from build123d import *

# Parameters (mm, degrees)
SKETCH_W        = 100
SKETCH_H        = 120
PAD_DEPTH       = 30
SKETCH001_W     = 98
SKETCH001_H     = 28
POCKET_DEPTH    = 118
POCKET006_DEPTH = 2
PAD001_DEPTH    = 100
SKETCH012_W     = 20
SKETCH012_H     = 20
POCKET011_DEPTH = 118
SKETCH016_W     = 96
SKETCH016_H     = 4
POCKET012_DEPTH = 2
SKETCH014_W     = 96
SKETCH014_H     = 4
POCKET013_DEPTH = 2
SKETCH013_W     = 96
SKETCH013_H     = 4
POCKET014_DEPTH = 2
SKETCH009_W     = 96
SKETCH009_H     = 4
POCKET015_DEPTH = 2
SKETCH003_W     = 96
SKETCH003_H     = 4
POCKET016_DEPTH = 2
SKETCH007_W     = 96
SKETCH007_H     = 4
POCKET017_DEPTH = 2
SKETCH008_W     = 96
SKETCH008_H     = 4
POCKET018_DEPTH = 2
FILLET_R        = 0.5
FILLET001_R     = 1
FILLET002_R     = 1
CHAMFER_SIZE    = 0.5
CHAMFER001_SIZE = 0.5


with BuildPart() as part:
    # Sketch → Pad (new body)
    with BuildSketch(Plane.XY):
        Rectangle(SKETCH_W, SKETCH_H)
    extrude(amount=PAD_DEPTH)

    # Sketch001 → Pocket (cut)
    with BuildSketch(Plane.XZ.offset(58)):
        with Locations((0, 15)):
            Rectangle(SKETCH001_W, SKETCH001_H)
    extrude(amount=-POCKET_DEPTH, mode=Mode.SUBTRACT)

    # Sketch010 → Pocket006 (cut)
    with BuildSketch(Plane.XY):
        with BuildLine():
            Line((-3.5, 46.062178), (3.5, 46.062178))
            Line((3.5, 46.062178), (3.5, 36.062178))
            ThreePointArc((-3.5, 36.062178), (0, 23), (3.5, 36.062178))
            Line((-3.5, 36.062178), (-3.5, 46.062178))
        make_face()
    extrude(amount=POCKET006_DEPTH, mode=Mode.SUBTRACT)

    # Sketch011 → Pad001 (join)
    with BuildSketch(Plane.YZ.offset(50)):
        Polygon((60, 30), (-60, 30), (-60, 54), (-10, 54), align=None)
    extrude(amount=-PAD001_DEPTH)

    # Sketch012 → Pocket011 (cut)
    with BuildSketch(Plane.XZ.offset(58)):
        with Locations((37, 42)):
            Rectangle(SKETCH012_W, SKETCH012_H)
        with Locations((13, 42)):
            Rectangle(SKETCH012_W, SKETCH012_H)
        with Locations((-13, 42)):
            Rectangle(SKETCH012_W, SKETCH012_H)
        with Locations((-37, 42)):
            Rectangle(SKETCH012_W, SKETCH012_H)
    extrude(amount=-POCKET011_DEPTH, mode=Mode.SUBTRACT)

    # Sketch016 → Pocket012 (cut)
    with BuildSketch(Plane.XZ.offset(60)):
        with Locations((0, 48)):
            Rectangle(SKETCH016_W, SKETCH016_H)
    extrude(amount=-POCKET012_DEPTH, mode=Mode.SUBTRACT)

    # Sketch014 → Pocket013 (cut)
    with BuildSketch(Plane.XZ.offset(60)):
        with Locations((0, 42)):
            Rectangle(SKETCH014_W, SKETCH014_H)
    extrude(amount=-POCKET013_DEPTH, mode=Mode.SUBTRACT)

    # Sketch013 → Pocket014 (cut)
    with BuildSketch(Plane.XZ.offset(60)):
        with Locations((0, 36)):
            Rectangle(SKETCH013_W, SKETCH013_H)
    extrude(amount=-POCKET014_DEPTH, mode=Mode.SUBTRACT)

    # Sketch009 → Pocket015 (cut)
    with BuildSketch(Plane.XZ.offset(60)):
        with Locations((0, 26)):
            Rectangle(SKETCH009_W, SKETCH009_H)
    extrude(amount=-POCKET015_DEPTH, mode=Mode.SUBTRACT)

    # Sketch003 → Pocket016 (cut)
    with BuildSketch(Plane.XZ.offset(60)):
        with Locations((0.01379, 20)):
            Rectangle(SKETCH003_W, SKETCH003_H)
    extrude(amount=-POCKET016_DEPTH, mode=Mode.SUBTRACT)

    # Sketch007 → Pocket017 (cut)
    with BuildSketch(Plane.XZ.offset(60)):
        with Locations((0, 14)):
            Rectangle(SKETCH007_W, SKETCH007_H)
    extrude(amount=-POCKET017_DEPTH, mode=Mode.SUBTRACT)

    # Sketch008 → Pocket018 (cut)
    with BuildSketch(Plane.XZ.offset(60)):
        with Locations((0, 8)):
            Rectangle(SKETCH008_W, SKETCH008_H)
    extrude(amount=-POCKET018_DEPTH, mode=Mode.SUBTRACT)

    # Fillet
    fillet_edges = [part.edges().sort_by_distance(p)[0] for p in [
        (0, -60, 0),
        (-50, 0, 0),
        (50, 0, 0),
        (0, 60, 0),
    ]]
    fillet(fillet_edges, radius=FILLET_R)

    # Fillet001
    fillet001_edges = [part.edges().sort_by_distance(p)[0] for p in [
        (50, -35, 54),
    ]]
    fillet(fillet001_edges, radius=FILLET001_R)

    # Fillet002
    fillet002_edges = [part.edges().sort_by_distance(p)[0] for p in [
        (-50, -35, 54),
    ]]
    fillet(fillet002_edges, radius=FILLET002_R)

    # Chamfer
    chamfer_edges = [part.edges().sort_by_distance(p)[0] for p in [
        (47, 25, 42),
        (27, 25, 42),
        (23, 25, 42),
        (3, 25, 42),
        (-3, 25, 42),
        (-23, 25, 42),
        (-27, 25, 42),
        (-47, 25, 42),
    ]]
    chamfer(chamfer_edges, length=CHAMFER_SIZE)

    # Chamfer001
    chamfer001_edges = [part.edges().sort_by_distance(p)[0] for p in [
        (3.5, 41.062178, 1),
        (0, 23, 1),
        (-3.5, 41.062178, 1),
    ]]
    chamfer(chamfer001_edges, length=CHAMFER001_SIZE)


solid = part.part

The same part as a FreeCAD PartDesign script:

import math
import FreeCAD as App
import Part
import Sketcher


def edges_at(feature, points):
    """Names of the edges that pass closest to the given points."""
    edges = feature.Shape.Edges
    near = lambda p: min(range(len(edges)), key=lambda i: edges[i].distToShape(Part.Vertex(*p))[0])
    return sorted({f"Edge{near(p) + 1}" for p in points})


def add_polygon(sketch, points):
    """Adds a closed chain of lines whose ends are joined by coincident constraints."""
    first, n = sketch.GeometryCount, len(points)
    for a, b in zip(points, points[1:] + points[:1]):
        sketch.addGeometry(Part.LineSegment(App.Vector(*a, 0), App.Vector(*b, 0)), False)
    for i in range(n):
        sketch.addConstraint(Sketcher.Constraint("Coincident", first + i, 2, first + (i + 1) % n, 1))

doc = App.newDocument("Part")
body = doc.addObject("PartDesign::Body", "Body")

sketch1 = body.newObject("Sketcher::SketchObject", "Sketch")
sketch1.AttachmentSupport = (doc.getObject("XY_Plane"), [""])
sketch1.MapMode = "FlatFace"
add_polygon(sketch1, [(-50, 60), (-50, -60), (50, -60), (50, 60)])
sketch1.addConstraint(Sketcher.Constraint("Vertical", 0))
sketch1.addConstraint(Sketcher.Constraint("Horizontal", 1))
sketch1.addConstraint(Sketcher.Constraint("Vertical", 2))
sketch1.addConstraint(Sketcher.Constraint("Horizontal", 3))
sketch1.addConstraint(Sketcher.Constraint("Symmetric", 0, 2, 2, 2, -1, 1))
sketch1.addConstraint(Sketcher.Constraint("DistanceX", 1, 1, 1, 2, 100.0))
sketch1.addConstraint(Sketcher.Constraint("DistanceY", 0, 2, 0, 1, 120.0))
pad1 = body.newObject("PartDesign::Pad", "Pad")
pad1.Profile = sketch1
pad1.Length = 30

sketch2 = body.newObject("Sketcher::SketchObject", "Sketch001")
sketch2.AttachmentSupport = (doc.getObject("XZ_Plane"), [""])
sketch2.MapMode = "FlatFace"
sketch2.AttachmentOffset = App.Placement(App.Vector(0, 0, 58), App.Rotation())
add_polygon(sketch2, [(-49, 29), (-49, 1), (49, 1), (49, 29)])
sketch2.addConstraint(Sketcher.Constraint("Vertical", 0))
sketch2.addConstraint(Sketcher.Constraint("Horizontal", 1))
sketch2.addConstraint(Sketcher.Constraint("Vertical", 2))
sketch2.addConstraint(Sketcher.Constraint("Horizontal", 3))
sketch2.addConstraint(Sketcher.Constraint("DistanceX", 1, 1, 1, 2, 98.0))
sketch2.addConstraint(Sketcher.Constraint("DistanceY", 0, 2, 0, 1, 28.0))
sketch2.addConstraint(Sketcher.Constraint("DistanceX", 0, 2, -1, 1, 49.0))
sketch2.addConstraint(Sketcher.Constraint("DistanceY", -1, 1, 0, 2, 1.0))
pocket1 = body.newObject("PartDesign::Pocket", "Pocket")
pocket1.Profile = sketch2
pocket1.Length = 118

sketch3 = body.newObject("Sketcher::SketchObject", "Sketch002")
sketch3.AttachmentSupport = (doc.getObject("XY_Plane"), [""])
sketch3.MapMode = "FlatFace"
sketch3.addGeometry(Part.LineSegment(App.Vector(4, 46, 0), App.Vector(-4, 46, 0)), False)
sketch3.addGeometry(Part.LineSegment(App.Vector(-4, 46, 0), App.Vector(-4, 36, 0)), False)
sketch3.addGeometry(Part.ArcOfCircle(Part.Circle(App.Vector(0, 30, 0), App.Vector(0, 0, 1), 7), math.radians(120), math.radians(420)), False)
sketch3.addGeometry(Part.LineSegment(App.Vector(4, 36, 0), App.Vector(4, 46, 0)), False)
sketch3.addConstraint(Sketcher.Constraint("Coincident", 0, 2, 1, 1))
sketch3.addConstraint(Sketcher.Constraint("Coincident", 1, 2, 2, 1))
sketch3.addConstraint(Sketcher.Constraint("Coincident", 2, 2, 3, 1))
sketch3.addConstraint(Sketcher.Constraint("Coincident", 3, 2, 0, 1))
sketch3.addConstraint(Sketcher.Constraint("Horizontal", 0))
sketch3.addConstraint(Sketcher.Constraint("Vertical", 1))
sketch3.addConstraint(Sketcher.Constraint("Vertical", 3))
sketch3.addConstraint(Sketcher.Constraint("Symmetric", 1, 2, 2, 2, -2))
sketch3.addConstraint(Sketcher.Constraint("Radius", 2, 7.0))
sketch3.addConstraint(Sketcher.Constraint("DistanceX", 0, 2, 0, 1, 7.0))
sketch3.addConstraint(Sketcher.Constraint("DistanceY", 1, 2, 1, 1, 10.0))
sketch3.addConstraint(Sketcher.Constraint("DistanceY", -1, 1, 2, 3, 30.0))
pocket2 = body.newObject("PartDesign::Pocket", "Pocket001")
pocket2.Profile = sketch3
pocket2.Length = 2
pocket2.Reversed = True

sketch4 = body.newObject("Sketcher::SketchObject", "Sketch003")
sketch4.AttachmentSupport = (doc.getObject("YZ_Plane"), [""])
sketch4.MapMode = "FlatFace"
sketch4.AttachmentOffset = App.Placement(App.Vector(0, 0, 50), App.Rotation())
add_polygon(sketch4, [(-60, 30), (60, 30), (-10, 54), (-60, 54)])
sketch4.addConstraint(Sketcher.Constraint("Horizontal", 0))
sketch4.addConstraint(Sketcher.Constraint("Horizontal", 2))
sketch4.addConstraint(Sketcher.Constraint("Vertical", 3))
sketch4.addConstraint(Sketcher.Constraint("DistanceX", 0, 1, 0, 2, 120.0))
sketch4.addConstraint(Sketcher.Constraint("DistanceX", 2, 2, 2, 1, 50.0))
sketch4.addConstraint(Sketcher.Constraint("DistanceY", 3, 2, 3, 1, 24.0))
sketch4.addConstraint(Sketcher.Constraint("DistanceX", -1, 1, 0, 2, 60.0))
sketch4.addConstraint(Sketcher.Constraint("DistanceY", -1, 1, 0, 2, 30.0))
pad2 = body.newObject("PartDesign::Pad", "Pad001")
pad2.Profile = sketch4
pad2.Length = 100
pad2.Reversed = True

sketch5 = body.newObject("Sketcher::SketchObject", "Sketch004")
sketch5.AttachmentSupport = (doc.getObject("XZ_Plane"), [""])
sketch5.MapMode = "FlatFace"
sketch5.AttachmentOffset = App.Placement(App.Vector(0, 0, 58), App.Rotation())
add_polygon(sketch5, [(27, 52), (27, 32), (47, 32), (47, 52)])
add_polygon(sketch5, [(3, 52), (3, 32), (23, 32), (23, 52)])
add_polygon(sketch5, [(-23, 52), (-23, 32), (-3, 32), (-3, 52)])
add_polygon(sketch5, [(-47, 52), (-47, 32), (-27, 32), (-27, 52)])
sketch5.addConstraint(Sketcher.Constraint("Vertical", 0))
sketch5.addConstraint(Sketcher.Constraint("Horizontal", 1))
sketch5.addConstraint(Sketcher.Constraint("Vertical", 2))
sketch5.addConstraint(Sketcher.Constraint("Horizontal", 3))
sketch5.addConstraint(Sketcher.Constraint("Vertical", 4))
sketch5.addConstraint(Sketcher.Constraint("Horizontal", 5))
sketch5.addConstraint(Sketcher.Constraint("Vertical", 6))
sketch5.addConstraint(Sketcher.Constraint("Horizontal", 7))
sketch5.addConstraint(Sketcher.Constraint("Vertical", 8))
sketch5.addConstraint(Sketcher.Constraint("Horizontal", 9))
sketch5.addConstraint(Sketcher.Constraint("Vertical", 10))
sketch5.addConstraint(Sketcher.Constraint("Horizontal", 11))
sketch5.addConstraint(Sketcher.Constraint("Vertical", 12))
sketch5.addConstraint(Sketcher.Constraint("Horizontal", 13))
sketch5.addConstraint(Sketcher.Constraint("Vertical", 14))
sketch5.addConstraint(Sketcher.Constraint("Horizontal", 15))
sketch5.addConstraint(Sketcher.Constraint("Symmetric", 5, 2, 8, 2, -2))
sketch5.addConstraint(Sketcher.Constraint("Symmetric", 7, 2, 10, 2, -2))
sketch5.addConstraint(Sketcher.Constraint("Symmetric", 1, 2, 12, 2, -2))
sketch5.addConstraint(Sketcher.Constraint("Symmetric", 3, 2, 14, 2, -2))
sketch5.addConstraint(Sketcher.Constraint("Horizontal", 1, 2, 4, 2))
sketch5.addConstraint(Sketcher.Constraint("Horizontal", 3, 2, 6, 2))
sketch5.addConstraint(Sketcher.Constraint("Equal", 3, 5))
sketch5.addConstraint(Sketcher.Constraint("Equal", 15, 0))
sketch5.addConstraint(Sketcher.Constraint("DistanceX", 1, 1, 1, 2, 20.0))
sketch5.addConstraint(Sketcher.Constraint("DistanceX", -1, 1, 0, 2, 27.0))
sketch5.addConstraint(Sketcher.Constraint("DistanceY", -1, 1, 0, 2, 32.0))
sketch5.addConstraint(Sketcher.Constraint("DistanceX", -1, 1, 4, 2, 3.0))
pocket3 = body.newObject("PartDesign::Pocket", "Pocket002")
pocket3.Profile = sketch5
pocket3.Length = 118

sketch6 = body.newObject("Sketcher::SketchObject", "Sketch005")
sketch6.AttachmentSupport = (doc.getObject("XZ_Plane"), [""])
sketch6.MapMode = "FlatFace"
sketch6.AttachmentOffset = App.Placement(App.Vector(0, 0, 60), App.Rotation())
add_polygon(sketch6, [(-48, 50), (-48, 46), (48, 46), (48, 50)])
sketch6.addConstraint(Sketcher.Constraint("Vertical", 0))
sketch6.addConstraint(Sketcher.Constraint("Horizontal", 1))
sketch6.addConstraint(Sketcher.Constraint("Vertical", 2))
sketch6.addConstraint(Sketcher.Constraint("Horizontal", 3))
sketch6.addConstraint(Sketcher.Constraint("DistanceX", 1, 1, 1, 2, 96.0))
sketch6.addConstraint(Sketcher.Constraint("DistanceY", 0, 2, 0, 1, 4.0))
sketch6.addConstraint(Sketcher.Constraint("DistanceX", 0, 2, -1, 1, 48.0))
sketch6.addConstraint(Sketcher.Constraint("DistanceY", -1, 1, 0, 2, 46.0))
pocket4 = body.newObject("PartDesign::Pocket", "Pocket003")
pocket4.Profile = sketch6
pocket4.Length = 2

sketch7 = body.newObject("Sketcher::SketchObject", "Sketch006")
sketch7.AttachmentSupport = (doc.getObject("XZ_Plane"), [""])
sketch7.MapMode = "FlatFace"
sketch7.AttachmentOffset = App.Placement(App.Vector(0, 0, 60), App.Rotation())
add_polygon(sketch7, [(-48, 44), (-48, 40), (48, 40), (48, 44)])
sketch7.addConstraint(Sketcher.Constraint("Vertical", 0))
sketch7.addConstraint(Sketcher.Constraint("Horizontal", 1))
sketch7.addConstraint(Sketcher.Constraint("Vertical", 2))
sketch7.addConstraint(Sketcher.Constraint("Horizontal", 3))
sketch7.addConstraint(Sketcher.Constraint("DistanceX", 1, 1, 1, 2, 96.0))
sketch7.addConstraint(Sketcher.Constraint("DistanceY", 0, 2, 0, 1, 4.0))
sketch7.addConstraint(Sketcher.Constraint("DistanceX", 0, 2, -1, 1, 48.0))
sketch7.addConstraint(Sketcher.Constraint("DistanceY", -1, 1, 0, 2, 40.0))
pocket5 = body.newObject("PartDesign::Pocket", "Pocket004")
pocket5.Profile = sketch7
pocket5.Length = 2

sketch8 = body.newObject("Sketcher::SketchObject", "Sketch007")
sketch8.AttachmentSupport = (doc.getObject("XZ_Plane"), [""])
sketch8.MapMode = "FlatFace"
sketch8.AttachmentOffset = App.Placement(App.Vector(0, 0, 60), App.Rotation())
add_polygon(sketch8, [(-48, 38), (-48, 34), (48, 34), (48, 38)])
sketch8.addConstraint(Sketcher.Constraint("Vertical", 0))
sketch8.addConstraint(Sketcher.Constraint("Horizontal", 1))
sketch8.addConstraint(Sketcher.Constraint("Vertical", 2))
sketch8.addConstraint(Sketcher.Constraint("Horizontal", 3))
sketch8.addConstraint(Sketcher.Constraint("DistanceX", 1, 1, 1, 2, 96.0))
sketch8.addConstraint(Sketcher.Constraint("DistanceY", 0, 2, 0, 1, 4.0))
sketch8.addConstraint(Sketcher.Constraint("DistanceX", 0, 2, -1, 1, 48.0))
sketch8.addConstraint(Sketcher.Constraint("DistanceY", -1, 1, 0, 2, 34.0))
pocket6 = body.newObject("PartDesign::Pocket", "Pocket005")
pocket6.Profile = sketch8
pocket6.Length = 2

sketch9 = body.newObject("Sketcher::SketchObject", "Sketch008")
sketch9.AttachmentSupport = (doc.getObject("XZ_Plane"), [""])
sketch9.MapMode = "FlatFace"
sketch9.AttachmentOffset = App.Placement(App.Vector(0, 0, 60), App.Rotation())
add_polygon(sketch9, [(-48, 28), (-48, 24), (48, 24), (48, 28)])
sketch9.addConstraint(Sketcher.Constraint("Vertical", 0))
sketch9.addConstraint(Sketcher.Constraint("Horizontal", 1))
sketch9.addConstraint(Sketcher.Constraint("Vertical", 2))
sketch9.addConstraint(Sketcher.Constraint("Horizontal", 3))
sketch9.addConstraint(Sketcher.Constraint("DistanceX", 1, 1, 1, 2, 96.0))
sketch9.addConstraint(Sketcher.Constraint("DistanceY", 0, 2, 0, 1, 4.0))
sketch9.addConstraint(Sketcher.Constraint("DistanceX", 0, 2, -1, 1, 48.0))
sketch9.addConstraint(Sketcher.Constraint("DistanceY", -1, 1, 0, 2, 24.0))
pocket7 = body.newObject("PartDesign::Pocket", "Pocket006")
pocket7.Profile = sketch9
pocket7.Length = 2

sketch10 = body.newObject("Sketcher::SketchObject", "Sketch009")
sketch10.AttachmentSupport = (doc.getObject("XZ_Plane"), [""])
sketch10.MapMode = "FlatFace"
sketch10.AttachmentOffset = App.Placement(App.Vector(0, 0, 60), App.Rotation())
add_polygon(sketch10, [(-48, 22), (-48, 18), (48, 18), (48, 22)])
sketch10.addConstraint(Sketcher.Constraint("Vertical", 0))
sketch10.addConstraint(Sketcher.Constraint("Horizontal", 1))
sketch10.addConstraint(Sketcher.Constraint("Vertical", 2))
sketch10.addConstraint(Sketcher.Constraint("Horizontal", 3))
sketch10.addConstraint(Sketcher.Constraint("DistanceX", 1, 1, 1, 2, 96.0))
sketch10.addConstraint(Sketcher.Constraint("DistanceY", 0, 2, 0, 1, 4.0))
sketch10.addConstraint(Sketcher.Constraint("DistanceY", -1, 1, 0, 2, 18.0))
sketch10.addConstraint(Sketcher.Constraint("DistanceX", 0, 2, -1, 1, 47.98621))
pocket8 = body.newObject("PartDesign::Pocket", "Pocket007")
pocket8.Profile = sketch10
pocket8.Length = 2

sketch11 = body.newObject("Sketcher::SketchObject", "Sketch010")
sketch11.AttachmentSupport = (doc.getObject("XZ_Plane"), [""])
sketch11.MapMode = "FlatFace"
sketch11.AttachmentOffset = App.Placement(App.Vector(0, 0, 60), App.Rotation())
add_polygon(sketch11, [(-48, 16), (-48, 12), (48, 12), (48, 16)])
sketch11.addConstraint(Sketcher.Constraint("Vertical", 0))
sketch11.addConstraint(Sketcher.Constraint("Horizontal", 1))
sketch11.addConstraint(Sketcher.Constraint("Vertical", 2))
sketch11.addConstraint(Sketcher.Constraint("Horizontal", 3))
sketch11.addConstraint(Sketcher.Constraint("DistanceX", 1, 1, 1, 2, 96.0))
sketch11.addConstraint(Sketcher.Constraint("DistanceY", 0, 2, 0, 1, 4.0))
sketch11.addConstraint(Sketcher.Constraint("DistanceX", 0, 2, -1, 1, 48.0))
sketch11.addConstraint(Sketcher.Constraint("DistanceY", -1, 1, 0, 2, 12.0))
pocket9 = body.newObject("PartDesign::Pocket", "Pocket008")
pocket9.Profile = sketch11
pocket9.Length = 2

sketch12 = body.newObject("Sketcher::SketchObject", "Sketch011")
sketch12.AttachmentSupport = (doc.getObject("XZ_Plane"), [""])
sketch12.MapMode = "FlatFace"
sketch12.AttachmentOffset = App.Placement(App.Vector(0, 0, 60), App.Rotation())
add_polygon(sketch12, [(-48, 10), (-48, 6), (48, 6), (48, 10)])
sketch12.addConstraint(Sketcher.Constraint("Vertical", 0))
sketch12.addConstraint(Sketcher.Constraint("Horizontal", 1))
sketch12.addConstraint(Sketcher.Constraint("Vertical", 2))
sketch12.addConstraint(Sketcher.Constraint("Horizontal", 3))
sketch12.addConstraint(Sketcher.Constraint("DistanceX", 1, 1, 1, 2, 96.0))
sketch12.addConstraint(Sketcher.Constraint("DistanceY", 0, 2, 0, 1, 4.0))
sketch12.addConstraint(Sketcher.Constraint("DistanceX", 0, 2, -1, 1, 48.0))
sketch12.addConstraint(Sketcher.Constraint("DistanceY", -1, 1, 0, 2, 6.0))
pocket10 = body.newObject("PartDesign::Pocket", "Pocket009")
pocket10.Profile = sketch12
pocket10.Length = 2
doc.recompute()

fillet = body.newObject("PartDesign::Fillet", "Fillet")
fillet.Base = (pocket10, edges_at(pocket10, [
    (0, -60, 0),
    (-50, 0, 0),
    (50, 0, 0),
    (0, 60, 0),
]))
fillet.Radius = 0.5
doc.recompute()

fillet2 = body.newObject("PartDesign::Fillet", "Fillet001")
fillet2.Base = (fillet, edges_at(fillet, [(50, -35, 54)]))
fillet2.Radius = 1
doc.recompute()

fillet3 = body.newObject("PartDesign::Fillet", "Fillet002")
fillet3.Base = (fillet2, edges_at(fillet2, [(-50, -35, 54)]))
fillet3.Radius = 1
doc.recompute()

chamfer = body.newObject("PartDesign::Chamfer", "Chamfer")
chamfer.Base = (fillet3, edges_at(fillet3, [
    (47, 25, 42),
    (27, 25, 42),
    (23, 25, 42),
    (3, 25, 42),
    (-3, 25, 42),
    (-23, 25, 42),
    (-27, 25, 42),
    (-47, 25, 42),
]))
chamfer.Size = 0.5
doc.recompute()

chamfer2 = body.newObject("PartDesign::Chamfer", "Chamfer001")
chamfer2.Base = (chamfer, edges_at(chamfer, [(3.5, 41.062, 1), (0, 23, 1), (-3.5, 41.062, 1)]))
chamfer2.Size = 0.5

doc.recompute()
